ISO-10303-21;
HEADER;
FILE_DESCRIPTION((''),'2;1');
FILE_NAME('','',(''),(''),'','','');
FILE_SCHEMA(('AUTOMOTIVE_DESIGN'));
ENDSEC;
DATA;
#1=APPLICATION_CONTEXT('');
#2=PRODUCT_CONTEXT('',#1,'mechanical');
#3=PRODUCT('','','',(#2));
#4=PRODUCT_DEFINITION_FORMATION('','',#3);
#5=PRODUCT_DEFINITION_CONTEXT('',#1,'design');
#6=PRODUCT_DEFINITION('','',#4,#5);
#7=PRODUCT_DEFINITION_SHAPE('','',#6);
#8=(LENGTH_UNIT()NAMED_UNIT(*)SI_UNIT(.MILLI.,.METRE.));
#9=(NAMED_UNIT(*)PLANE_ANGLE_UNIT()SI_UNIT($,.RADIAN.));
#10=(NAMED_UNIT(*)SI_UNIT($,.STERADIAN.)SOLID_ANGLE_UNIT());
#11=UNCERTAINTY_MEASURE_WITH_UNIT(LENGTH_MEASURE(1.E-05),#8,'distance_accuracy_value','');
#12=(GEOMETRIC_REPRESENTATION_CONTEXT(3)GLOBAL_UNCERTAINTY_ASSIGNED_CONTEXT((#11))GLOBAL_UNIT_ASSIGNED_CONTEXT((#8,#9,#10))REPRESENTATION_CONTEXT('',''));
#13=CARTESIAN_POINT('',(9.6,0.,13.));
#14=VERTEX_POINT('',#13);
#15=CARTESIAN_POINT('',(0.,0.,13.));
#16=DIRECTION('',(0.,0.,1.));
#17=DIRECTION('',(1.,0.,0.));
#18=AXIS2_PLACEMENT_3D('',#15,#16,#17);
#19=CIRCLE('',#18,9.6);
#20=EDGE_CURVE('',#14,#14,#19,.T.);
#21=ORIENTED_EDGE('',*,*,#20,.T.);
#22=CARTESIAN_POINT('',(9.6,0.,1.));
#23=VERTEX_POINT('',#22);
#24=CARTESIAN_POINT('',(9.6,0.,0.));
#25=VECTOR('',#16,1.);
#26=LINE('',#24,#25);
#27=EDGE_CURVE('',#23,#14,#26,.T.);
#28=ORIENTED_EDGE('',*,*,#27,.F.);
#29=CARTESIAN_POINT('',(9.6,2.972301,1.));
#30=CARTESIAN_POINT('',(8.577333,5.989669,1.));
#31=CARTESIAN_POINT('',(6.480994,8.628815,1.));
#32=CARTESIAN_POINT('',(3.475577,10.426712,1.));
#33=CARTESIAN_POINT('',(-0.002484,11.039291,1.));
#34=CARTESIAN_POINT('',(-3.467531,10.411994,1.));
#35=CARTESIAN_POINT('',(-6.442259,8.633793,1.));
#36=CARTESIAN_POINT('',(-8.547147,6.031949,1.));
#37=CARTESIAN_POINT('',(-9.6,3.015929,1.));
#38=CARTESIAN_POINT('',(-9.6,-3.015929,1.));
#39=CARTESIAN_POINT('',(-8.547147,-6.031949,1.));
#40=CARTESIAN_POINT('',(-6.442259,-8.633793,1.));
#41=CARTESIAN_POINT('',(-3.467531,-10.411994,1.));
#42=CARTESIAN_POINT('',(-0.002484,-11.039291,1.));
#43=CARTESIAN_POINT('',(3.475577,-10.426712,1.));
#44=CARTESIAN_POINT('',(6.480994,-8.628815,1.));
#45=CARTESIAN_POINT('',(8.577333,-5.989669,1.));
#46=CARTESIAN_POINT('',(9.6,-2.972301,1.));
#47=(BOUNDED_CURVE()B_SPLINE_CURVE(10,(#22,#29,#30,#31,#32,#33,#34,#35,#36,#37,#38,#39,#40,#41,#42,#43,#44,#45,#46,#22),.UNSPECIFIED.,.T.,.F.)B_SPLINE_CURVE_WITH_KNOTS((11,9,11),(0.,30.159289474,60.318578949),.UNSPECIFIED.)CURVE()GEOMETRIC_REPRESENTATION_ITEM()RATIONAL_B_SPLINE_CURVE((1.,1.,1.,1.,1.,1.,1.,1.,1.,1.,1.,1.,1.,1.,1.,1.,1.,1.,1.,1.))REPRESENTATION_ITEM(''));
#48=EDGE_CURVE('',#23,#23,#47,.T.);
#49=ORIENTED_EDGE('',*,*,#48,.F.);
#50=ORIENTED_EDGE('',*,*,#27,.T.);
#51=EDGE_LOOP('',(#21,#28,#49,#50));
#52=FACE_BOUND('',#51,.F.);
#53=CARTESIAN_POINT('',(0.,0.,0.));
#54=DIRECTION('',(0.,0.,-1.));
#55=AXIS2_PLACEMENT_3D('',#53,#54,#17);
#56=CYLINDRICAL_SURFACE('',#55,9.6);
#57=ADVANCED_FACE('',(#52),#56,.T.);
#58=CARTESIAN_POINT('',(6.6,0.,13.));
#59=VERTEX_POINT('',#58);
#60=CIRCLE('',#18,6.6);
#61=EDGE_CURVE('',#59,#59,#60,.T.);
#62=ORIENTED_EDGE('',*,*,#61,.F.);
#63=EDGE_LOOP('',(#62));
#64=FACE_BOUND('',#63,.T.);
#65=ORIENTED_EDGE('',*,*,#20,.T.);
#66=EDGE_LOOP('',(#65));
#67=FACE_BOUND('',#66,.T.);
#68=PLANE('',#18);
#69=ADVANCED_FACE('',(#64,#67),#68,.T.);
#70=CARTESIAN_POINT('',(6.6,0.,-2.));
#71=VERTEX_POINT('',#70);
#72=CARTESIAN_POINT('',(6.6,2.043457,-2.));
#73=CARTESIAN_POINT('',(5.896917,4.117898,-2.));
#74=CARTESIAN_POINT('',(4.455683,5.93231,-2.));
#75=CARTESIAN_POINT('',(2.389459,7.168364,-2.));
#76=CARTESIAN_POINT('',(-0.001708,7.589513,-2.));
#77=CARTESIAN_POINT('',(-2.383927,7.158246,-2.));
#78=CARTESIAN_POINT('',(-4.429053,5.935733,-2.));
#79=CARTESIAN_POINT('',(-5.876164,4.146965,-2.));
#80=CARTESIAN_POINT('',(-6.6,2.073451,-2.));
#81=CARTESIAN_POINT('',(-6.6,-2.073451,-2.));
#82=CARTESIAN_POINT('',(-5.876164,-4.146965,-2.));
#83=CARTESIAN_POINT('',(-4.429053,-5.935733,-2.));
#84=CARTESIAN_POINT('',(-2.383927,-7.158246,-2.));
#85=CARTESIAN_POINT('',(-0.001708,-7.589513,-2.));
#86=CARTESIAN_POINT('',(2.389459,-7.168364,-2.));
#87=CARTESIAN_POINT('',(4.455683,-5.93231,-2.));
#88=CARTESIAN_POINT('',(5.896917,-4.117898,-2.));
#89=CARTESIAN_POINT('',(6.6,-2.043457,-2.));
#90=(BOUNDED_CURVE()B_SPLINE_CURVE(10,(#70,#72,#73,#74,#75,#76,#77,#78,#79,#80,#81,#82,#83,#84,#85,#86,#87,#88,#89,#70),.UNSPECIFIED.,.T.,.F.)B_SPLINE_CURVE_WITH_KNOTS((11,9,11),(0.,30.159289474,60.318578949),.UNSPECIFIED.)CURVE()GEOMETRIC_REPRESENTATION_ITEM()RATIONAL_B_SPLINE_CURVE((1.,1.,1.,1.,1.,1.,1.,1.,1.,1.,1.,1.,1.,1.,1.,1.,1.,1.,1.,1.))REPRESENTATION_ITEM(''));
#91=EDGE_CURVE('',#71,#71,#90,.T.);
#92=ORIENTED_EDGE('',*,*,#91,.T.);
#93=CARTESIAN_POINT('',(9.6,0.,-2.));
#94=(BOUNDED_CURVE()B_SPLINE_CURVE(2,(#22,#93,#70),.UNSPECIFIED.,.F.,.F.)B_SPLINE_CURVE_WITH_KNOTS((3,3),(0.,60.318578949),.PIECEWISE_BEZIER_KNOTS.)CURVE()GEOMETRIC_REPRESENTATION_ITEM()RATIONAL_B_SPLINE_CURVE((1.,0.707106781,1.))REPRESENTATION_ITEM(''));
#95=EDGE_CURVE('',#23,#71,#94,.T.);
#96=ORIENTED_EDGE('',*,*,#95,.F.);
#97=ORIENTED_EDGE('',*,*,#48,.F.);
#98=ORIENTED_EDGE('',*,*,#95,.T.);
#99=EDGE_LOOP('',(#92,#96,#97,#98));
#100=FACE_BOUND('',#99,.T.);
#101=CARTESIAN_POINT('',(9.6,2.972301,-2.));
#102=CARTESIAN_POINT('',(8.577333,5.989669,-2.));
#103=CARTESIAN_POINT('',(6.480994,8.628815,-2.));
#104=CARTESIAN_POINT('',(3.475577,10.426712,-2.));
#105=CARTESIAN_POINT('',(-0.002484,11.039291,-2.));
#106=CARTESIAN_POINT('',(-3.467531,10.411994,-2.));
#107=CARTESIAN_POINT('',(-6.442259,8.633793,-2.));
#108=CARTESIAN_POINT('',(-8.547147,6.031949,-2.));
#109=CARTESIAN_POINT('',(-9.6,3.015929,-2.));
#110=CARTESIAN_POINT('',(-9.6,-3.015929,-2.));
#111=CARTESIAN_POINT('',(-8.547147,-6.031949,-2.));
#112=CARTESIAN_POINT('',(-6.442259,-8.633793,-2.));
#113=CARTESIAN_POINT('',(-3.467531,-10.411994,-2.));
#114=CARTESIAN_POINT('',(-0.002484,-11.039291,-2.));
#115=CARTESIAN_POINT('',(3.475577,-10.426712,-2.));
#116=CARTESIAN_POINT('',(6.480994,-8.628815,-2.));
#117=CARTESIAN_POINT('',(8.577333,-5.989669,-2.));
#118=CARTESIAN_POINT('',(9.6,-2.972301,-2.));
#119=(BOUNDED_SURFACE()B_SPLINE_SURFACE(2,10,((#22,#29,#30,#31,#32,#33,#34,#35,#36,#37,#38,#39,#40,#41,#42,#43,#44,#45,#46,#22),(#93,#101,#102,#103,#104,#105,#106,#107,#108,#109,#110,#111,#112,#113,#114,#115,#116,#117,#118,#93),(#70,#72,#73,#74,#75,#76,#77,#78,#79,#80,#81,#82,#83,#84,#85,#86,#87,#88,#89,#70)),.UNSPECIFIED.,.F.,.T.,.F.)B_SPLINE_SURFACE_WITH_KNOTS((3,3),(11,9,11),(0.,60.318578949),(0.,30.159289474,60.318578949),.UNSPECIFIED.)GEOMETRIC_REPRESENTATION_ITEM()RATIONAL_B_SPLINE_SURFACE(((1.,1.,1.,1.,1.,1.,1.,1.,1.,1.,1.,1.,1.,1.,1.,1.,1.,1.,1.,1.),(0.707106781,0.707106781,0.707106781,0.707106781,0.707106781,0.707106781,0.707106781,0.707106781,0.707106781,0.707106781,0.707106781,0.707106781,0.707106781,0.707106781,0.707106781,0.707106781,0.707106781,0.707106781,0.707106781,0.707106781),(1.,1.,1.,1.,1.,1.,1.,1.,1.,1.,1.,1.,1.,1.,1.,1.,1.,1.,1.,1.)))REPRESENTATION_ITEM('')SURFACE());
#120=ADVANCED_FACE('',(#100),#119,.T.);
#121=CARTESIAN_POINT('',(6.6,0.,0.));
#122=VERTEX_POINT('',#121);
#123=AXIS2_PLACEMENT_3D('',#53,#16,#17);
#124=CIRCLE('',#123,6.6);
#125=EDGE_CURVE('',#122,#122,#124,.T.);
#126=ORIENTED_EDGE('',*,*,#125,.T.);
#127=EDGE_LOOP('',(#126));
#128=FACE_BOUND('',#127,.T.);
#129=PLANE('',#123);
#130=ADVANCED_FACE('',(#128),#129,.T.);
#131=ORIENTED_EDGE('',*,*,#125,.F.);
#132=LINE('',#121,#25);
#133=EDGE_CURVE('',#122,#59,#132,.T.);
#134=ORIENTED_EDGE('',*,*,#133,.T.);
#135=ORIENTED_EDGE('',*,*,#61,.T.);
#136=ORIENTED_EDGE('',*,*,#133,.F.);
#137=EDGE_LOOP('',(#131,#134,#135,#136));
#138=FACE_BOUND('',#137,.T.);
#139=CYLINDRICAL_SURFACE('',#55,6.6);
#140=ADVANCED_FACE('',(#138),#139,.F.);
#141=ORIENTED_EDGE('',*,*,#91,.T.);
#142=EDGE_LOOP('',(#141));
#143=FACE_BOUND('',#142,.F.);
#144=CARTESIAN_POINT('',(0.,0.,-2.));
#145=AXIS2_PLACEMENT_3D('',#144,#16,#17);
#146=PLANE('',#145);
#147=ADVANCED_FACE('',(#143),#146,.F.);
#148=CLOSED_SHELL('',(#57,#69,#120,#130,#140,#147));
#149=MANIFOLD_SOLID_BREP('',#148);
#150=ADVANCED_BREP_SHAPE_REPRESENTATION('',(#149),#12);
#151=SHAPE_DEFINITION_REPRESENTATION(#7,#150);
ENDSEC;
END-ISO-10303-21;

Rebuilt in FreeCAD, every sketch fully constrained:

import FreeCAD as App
import Part
import Sketcher

V = App.Vector


def edges_at(feature, points):
    """Names of the edges that pass closest to the given points."""
    edges = feature.Shape.Edges
    near = lambda p: min(range(len(edges)), key=lambda i: edges[i].distToShape(Part.Vertex(*p))[0])
    return sorted({f"Edge{near(p) + 1}" for p in points})

doc = App.newDocument("Part")
body = doc.addObject("PartDesign::Body", "Body")

# Sketch on XY plane
sketch1 = doc.addObject("Sketcher::SketchObject", "Sketch")
body.addObject(sketch1)
sketch1.AttachmentSupport = (doc.XY_Plane, [""])
sketch1.MapMode = "FlatFace"
sketch1.addGeometry(Part.Circle(V(0, 0, 0), V(0, 0, 1), 9.6), False)
sketch1.addGeometry(Part.Circle(V(0, 0, 0), V(0, 0, 1), 6.6), False)
sketch1.addConstraint(Sketcher.Constraint("Coincident", 0, 3, -1, 1))
sketch1.addConstraint(Sketcher.Constraint("Coincident", 1, 3, -1, 1))
sketch1.addConstraint(Sketcher.Constraint("Diameter", 1, 13.2))
sketch1.addConstraint(Sketcher.Constraint("Diameter", 0, 19.2))
pad1 = doc.addObject("PartDesign::Pad", "Pad")
body.addObject(pad1)
pad1.Profile = sketch1
pad1.Length = 13

# Sketch on XY plane
sketch2 = doc.addObject("Sketcher::SketchObject", "Sketch001")
body.addObject(sketch2)
sketch2.AttachmentSupport = (doc.XY_Plane, [""])
sketch2.MapMode = "FlatFace"
sketch2.addGeometry(Part.Circle(V(0, 0, 0), V(0, 0, 1), 9.6), False)
sketch2.addConstraint(Sketcher.Constraint("Coincident", 0, 3, -1, 1))
sketch2.addConstraint(Sketcher.Constraint("Diameter", 0, 19.2))
pad2 = doc.addObject("PartDesign::Pad", "Pad001")
body.addObject(pad2)
pad2.Profile = sketch2
pad2.Length = 2
pad2.Reversed = True
doc.recompute()

fillet = doc.addObject("PartDesign::Fillet", "Fillet")
body.addObject(fillet)
fillet.Base = (pad2, edges_at(pad2, [(-8.95, 3.471, -2)]))
fillet.Radius = 3

doc.recompute()
